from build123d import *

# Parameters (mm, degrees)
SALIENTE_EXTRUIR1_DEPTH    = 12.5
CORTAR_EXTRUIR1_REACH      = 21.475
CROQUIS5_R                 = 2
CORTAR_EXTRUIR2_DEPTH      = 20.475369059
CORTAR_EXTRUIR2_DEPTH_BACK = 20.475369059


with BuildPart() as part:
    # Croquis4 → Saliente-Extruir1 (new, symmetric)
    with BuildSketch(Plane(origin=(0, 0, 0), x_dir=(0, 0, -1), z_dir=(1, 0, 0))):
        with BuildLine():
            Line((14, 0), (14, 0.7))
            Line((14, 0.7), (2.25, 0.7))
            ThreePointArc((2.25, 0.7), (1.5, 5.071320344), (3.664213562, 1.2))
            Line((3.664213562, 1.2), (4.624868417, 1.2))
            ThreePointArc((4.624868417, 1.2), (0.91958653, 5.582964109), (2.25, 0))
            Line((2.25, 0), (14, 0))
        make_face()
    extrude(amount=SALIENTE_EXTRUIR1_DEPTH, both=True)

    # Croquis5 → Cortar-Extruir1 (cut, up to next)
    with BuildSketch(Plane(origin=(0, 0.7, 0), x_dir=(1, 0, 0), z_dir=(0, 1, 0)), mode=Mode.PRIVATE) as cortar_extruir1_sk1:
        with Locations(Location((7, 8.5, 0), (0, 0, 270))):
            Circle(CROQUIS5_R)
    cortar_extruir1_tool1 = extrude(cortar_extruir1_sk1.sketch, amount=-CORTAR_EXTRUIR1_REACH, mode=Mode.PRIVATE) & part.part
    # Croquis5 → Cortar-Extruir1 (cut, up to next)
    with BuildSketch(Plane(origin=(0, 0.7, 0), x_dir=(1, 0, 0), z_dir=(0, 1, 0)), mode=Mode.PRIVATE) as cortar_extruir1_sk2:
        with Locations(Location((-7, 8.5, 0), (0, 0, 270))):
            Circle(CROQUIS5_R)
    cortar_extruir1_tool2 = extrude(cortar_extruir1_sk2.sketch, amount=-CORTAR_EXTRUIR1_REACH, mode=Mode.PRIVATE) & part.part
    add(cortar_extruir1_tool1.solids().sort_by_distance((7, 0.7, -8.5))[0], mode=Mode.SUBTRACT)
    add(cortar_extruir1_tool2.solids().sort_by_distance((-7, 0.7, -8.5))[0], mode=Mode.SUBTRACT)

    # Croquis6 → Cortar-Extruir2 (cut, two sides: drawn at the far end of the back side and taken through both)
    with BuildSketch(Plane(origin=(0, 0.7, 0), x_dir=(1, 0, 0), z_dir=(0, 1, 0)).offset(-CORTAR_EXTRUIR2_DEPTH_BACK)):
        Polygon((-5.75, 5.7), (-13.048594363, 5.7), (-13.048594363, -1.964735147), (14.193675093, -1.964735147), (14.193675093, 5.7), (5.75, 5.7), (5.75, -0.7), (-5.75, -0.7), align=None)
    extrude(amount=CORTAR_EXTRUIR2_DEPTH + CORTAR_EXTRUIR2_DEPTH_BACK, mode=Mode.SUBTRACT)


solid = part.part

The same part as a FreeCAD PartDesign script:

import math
import FreeCAD as App
import Part
import Sketcher
Q = App.Units.Quantity


def add_polygon(sketch, points):
    """Adds a closed chain of lines whose ends are joined by coincident constraints."""
    first, n = sketch.GeometryCount, len(points)
    for a, b in zip(points, points[1:] + points[:1]):
        sketch.addGeometry(Part.LineSegment(App.Vector(*a, 0), App.Vector(*b, 0)), False)
    for i in range(n):
        sketch.addConstraint(Sketcher.Constraint("Coincident", first + i, 2, first + (i + 1) % n, 1))

doc = App.newDocument("Part")
body = doc.addObject("PartDesign::Body", "Body")

sketch1 = doc.addObject("Sketcher::SketchObject", "Sketch")
body.addObject(sketch1)
sketch1.AttachmentSupport = (doc.YZ_Plane, [""])
sketch1.MapMode = "FlatFace"
sketch1.addGeometry([
    Part.LineSegment(App.Vector(0, -14, 0), App.Vector(0.7, -14, 0)),
    Part.LineSegment(App.Vector(0.7, -14, 0), App.Vector(0.7, -2.2, 0)),
    Part.ArcOfCircle(Part.Circle(App.Vector(3, -2.2, 0), App.Vector(0, 0, 1), 2.2), math.radians(-141), math.radians(180)),
    Part.LineSegment(App.Vector(1.2, -3.7, 0), App.Vector(1.2, -4.6, 0)),
    Part.ArcOfCircle(Part.Circle(App.Vector(3, -2.2, 0), App.Vector(0, 0, 1), 3), math.radians(-126), math.radians(180)),
    Part.LineSegment(App.Vector(0, -2.2, 0), App.Vector(0, -14, 0)),
], False)
sketch1.addConstraint([
    Sketcher.Constraint("Coincident", 0, 2, 1, 1),
    Sketcher.Constraint("Tangent", 1, 2, 2, 2),
    Sketcher.Constraint("Coincident", 2, 1, 3, 1),
    Sketcher.Constraint("Coincident", 3, 2, 4, 1),
    Sketcher.Constraint("Tangent", 4, 2, 5, 1),
    Sketcher.Constraint("Coincident", 5, 2, 0, 1),
    Sketcher.Constraint("Horizontal", 0),
    Sketcher.Constraint("Vertical", 1),
    Sketcher.Constraint("Vertical", 3),
    Sketcher.Constraint("Vertical", 5),
    Sketcher.Constraint("Coincident", 4, 3, 2, 3),
    Sketcher.Constraint("PointOnObject", 4, 2, -2),
    Sketcher.Constraint("Radius", 2, Q("2.25 mm")),
    Sketcher.Constraint("Radius", 4, Q("2.95 mm")),
    Sketcher.Constraint("DistanceY", 0, 2, -1, 1, Q("14 mm")),
    Sketcher.Constraint("DistanceY", 1, 1, 1, 2, Q("11.75 mm")),
    Sketcher.Constraint("DistanceX", -1, 1, 2, 1, Q("1.2 mm")),
])
pad1 = doc.addObject("PartDesign::Pad", "Pad")
body.addObject(pad1)
pad1.Profile = sketch1
pad1.Length = 25
pad1.Midplane = True

sketch2 = doc.addObject("Sketcher::SketchObject", "Sketch001")
body.addObject(sketch2)
sketch2.AttachmentSupport = (doc.XZ_Plane, [""])
sketch2.MapMode = "FlatFace"
sketch2.AttachmentOffset = App.Placement(App.Vector(0, 0, -0.7), App.Rotation())
sketch2.addGeometry(Part.Circle(App.Vector(7, -8.5, 0), App.Vector(0, 0, 1), 2), False)
sketch2.addConstraint([
    Sketcher.Constraint("Diameter", 0, Q("4 mm")),
    Sketcher.Constraint("DistanceX", -1, 1, 0, 3, Q("7 mm")),
    Sketcher.Constraint("DistanceY", 0, 3, -1, 1, Q("8.5 mm")),
])
pocket1 = doc.addObject("PartDesign::Pocket", "Pocket")
body.addObject(pocket1)
pocket1.Profile = sketch2
pocket1.Type = "UpToFirst"
pocket1.Reversed = True

sketch3 = doc.addObject("Sketcher::SketchObject", "Sketch002")
body.addObject(sketch3)
sketch3.AttachmentSupport = (doc.XZ_Plane, [""])
sketch3.MapMode = "FlatFace"
sketch3.AttachmentOffset = App.Placement(App.Vector(0, 0, -0.7), App.Rotation())
sketch3.addGeometry(Part.Circle(App.Vector(-7, -8.5, 0), App.Vector(0, 0, 1), 2), False)
sketch3.addConstraint([
    Sketcher.Constraint("Diameter", 0, Q("4 mm")),
    Sketcher.Constraint("DistanceX", 0, 3, -1, 1, Q("7 mm")),
    Sketcher.Constraint("DistanceY", 0, 3, -1, 1, Q("8.5 mm")),
])
pocket2 = doc.addObject("PartDesign::Pocket", "Pocket001")
body.addObject(pocket2)
pocket2.Profile = sketch3
pocket2.Type = "UpToFirst"
pocket2.Reversed = True

sketch4 = doc.addObject("Sketcher::SketchObject", "Sketch003")
body.addObject(sketch4)
sketch4.AttachmentSupport = (doc.XZ_Plane, [""])
sketch4.MapMode = "FlatFace"
sketch4.AttachmentOffset = App.Placement(App.Vector(0, 0, -0.7), App.Rotation())
add_polygon(sketch4, [(-6, -6), (-13, -6), (-13, 2), (14, 2), (14, -6), (6, -6), (6, 1), (-6, 1)])
sketch4.addConstraint([
    Sketcher.Constraint("Horizontal", 0),
    Sketcher.Constraint("Vertical", 1),
    Sketcher.Constraint("Horizontal", 2),
    Sketcher.Constraint("Vertical", 3),
    Sketcher.Constraint("Horizontal", 4),
    Sketcher.Constraint("Vertical", 5),
    Sketcher.Constraint("Horizontal", 6),
    Sketcher.Constraint("Vertical", 7),
    Sketcher.Constraint("Symmetric", 4, 2, 7, 2, -2),
    Sketcher.Constraint("DistanceX", 6, 2, 6, 1, Q("11.5 mm")),
    Sketcher.Constraint("DistanceY", 5, 1, 5, 2, Q("6.4 mm")),
    Sketcher.Constraint("DistanceY", 0, 2, -1, 1, Q("5.7 mm")),
    Sketcher.Constraint("DistanceX", 2, 1, 2, 2, Q("27.242269 mm")),
    Sketcher.Constraint("DistanceX", 0, 2, 0, 1, Q("7.298594 mm")),
    Sketcher.Constraint("DistanceY", 1, 1, 1, 2, Q("7.664735 mm")),
])
pocket3 = doc.addObject("PartDesign::Pocket", "Pocket002")
body.addObject(pocket3)
pocket3.Profile = sketch4
pocket3.Type = "ThroughAll"
pocket3.Midplane = True

doc.recompute()
